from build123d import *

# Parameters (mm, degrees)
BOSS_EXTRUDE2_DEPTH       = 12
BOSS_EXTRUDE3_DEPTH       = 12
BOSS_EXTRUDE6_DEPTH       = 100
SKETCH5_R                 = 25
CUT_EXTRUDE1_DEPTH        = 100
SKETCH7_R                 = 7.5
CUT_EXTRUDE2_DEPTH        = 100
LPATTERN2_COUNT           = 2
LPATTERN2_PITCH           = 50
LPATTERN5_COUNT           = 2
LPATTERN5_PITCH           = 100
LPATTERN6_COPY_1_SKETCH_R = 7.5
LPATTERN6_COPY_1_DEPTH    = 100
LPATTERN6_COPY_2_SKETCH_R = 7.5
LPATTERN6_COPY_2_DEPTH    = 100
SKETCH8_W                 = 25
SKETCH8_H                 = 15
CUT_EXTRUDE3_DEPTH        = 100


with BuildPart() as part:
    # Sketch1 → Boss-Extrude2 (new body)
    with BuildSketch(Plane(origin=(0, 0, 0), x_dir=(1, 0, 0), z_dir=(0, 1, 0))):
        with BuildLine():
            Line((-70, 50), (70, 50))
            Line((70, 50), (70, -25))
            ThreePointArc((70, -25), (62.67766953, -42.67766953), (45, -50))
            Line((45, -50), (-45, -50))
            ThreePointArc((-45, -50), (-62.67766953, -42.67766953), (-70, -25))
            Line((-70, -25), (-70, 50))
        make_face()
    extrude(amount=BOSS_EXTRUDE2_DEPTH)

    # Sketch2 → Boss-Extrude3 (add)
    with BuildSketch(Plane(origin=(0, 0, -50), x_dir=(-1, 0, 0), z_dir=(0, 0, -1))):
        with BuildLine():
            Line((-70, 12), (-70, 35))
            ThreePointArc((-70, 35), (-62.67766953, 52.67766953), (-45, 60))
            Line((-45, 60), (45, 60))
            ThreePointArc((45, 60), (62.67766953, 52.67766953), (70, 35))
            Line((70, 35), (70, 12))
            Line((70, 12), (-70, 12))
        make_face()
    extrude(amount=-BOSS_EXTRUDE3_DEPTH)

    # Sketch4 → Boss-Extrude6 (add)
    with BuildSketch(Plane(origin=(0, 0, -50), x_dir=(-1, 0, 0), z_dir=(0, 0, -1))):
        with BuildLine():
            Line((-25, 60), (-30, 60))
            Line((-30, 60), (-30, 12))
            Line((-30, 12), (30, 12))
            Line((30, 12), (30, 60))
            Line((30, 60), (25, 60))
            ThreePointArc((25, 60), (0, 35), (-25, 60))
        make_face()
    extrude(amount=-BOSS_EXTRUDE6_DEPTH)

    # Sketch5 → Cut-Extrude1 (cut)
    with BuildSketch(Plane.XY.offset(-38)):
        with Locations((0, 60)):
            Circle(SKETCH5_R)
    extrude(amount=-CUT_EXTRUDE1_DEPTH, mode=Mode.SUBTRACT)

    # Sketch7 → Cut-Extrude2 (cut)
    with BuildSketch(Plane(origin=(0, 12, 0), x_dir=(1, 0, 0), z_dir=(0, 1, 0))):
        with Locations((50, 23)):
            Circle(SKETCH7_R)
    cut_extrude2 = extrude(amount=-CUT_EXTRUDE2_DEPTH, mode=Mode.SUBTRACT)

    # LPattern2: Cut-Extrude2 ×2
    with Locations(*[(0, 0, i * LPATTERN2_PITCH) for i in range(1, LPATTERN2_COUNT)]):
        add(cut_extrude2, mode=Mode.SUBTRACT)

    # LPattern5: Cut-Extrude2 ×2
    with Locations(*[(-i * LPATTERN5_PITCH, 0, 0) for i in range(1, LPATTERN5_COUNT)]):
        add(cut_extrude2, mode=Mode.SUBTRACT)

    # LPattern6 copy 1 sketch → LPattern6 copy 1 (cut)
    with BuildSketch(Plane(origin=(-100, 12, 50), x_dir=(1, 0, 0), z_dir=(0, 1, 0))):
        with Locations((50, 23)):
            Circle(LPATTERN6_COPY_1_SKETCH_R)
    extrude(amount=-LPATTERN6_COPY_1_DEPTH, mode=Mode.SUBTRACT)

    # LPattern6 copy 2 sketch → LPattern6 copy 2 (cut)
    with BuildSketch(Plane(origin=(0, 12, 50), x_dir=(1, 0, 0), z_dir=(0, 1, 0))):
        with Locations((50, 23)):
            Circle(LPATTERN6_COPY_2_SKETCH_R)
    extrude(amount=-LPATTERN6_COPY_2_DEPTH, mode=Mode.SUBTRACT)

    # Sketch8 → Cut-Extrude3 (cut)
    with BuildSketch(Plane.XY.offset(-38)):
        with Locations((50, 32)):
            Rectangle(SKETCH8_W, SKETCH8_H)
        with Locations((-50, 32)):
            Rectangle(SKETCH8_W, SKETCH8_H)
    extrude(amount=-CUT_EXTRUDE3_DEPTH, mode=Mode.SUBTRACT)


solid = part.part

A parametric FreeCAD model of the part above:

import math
import FreeCAD as App
import Part
import Sketcher
from FreeCAD import Vector
Q = App.Units.Quantity

doc = App.newDocument("Part")
params = doc.addObject("Spreadsheet::Sheet", "Params")
for row, (alias, value) in enumerate([
    ("sketch1_radius", "25 mm"),
    ("sketch1_width", "140 mm"),
    ("sketch1_height", "75 mm"),
    ("pad1_length", "12 mm"),
    ("sketch2_radius", "25 mm"),
    ("sketch2_width", "140 mm"),
    ("sketch2_height", "23 mm"),
    ("pad2_length", "12 mm"),
    ("sketch3_radius", "25 mm"),
    ("sketch3_width", "5 mm"),
    ("sketch3_height", "48 mm"),
    ("pad3_length", "100 mm"),
    ("sketch4_diameter", "50 mm"),
    ("pocket1_length", "100 mm"),
    ("sketch5_diameter", "15 mm"),
    ("pocket2_length", "100 mm"),
    ("linearpattern_pitch", "50 mm"),
    ("linearpattern2_pitch", "100 mm"),
    ("sketch6_diameter", "15 mm"),
    ("pocket3_length", "100 mm"),
    ("sketch7_diameter", "15 mm"),
    ("pocket4_length", "100 mm"),
    ("sketch8_width", "25 mm"),
    ("sketch8_height", "15 mm"),
    ("pocket5_length", "100 mm"),
], start=1):
    params.set(f"A{row}", alias)
    params.set(f"B{row}", "=" + value)
    params.setAlias(f"B{row}", alias)

body = doc.addObject("PartDesign::Body", "Body")

# Sketch on XZ plane
sketch1 = body.newObject("Sketcher::SketchObject", "Sketch")
sketch1.AttachmentSupport = (doc.getObject("XZ_Plane"), [""])
sketch1.MapMode = "FlatFace"
sketch1.addGeometry([
    Part.LineSegment(Vector(70, -50, 0), Vector(-70, -50, 0)),  # 0
    Part.LineSegment(Vector(-70, -50, 0), Vector(-70, 25, 0)),  # 1
    Part.ArcOfCircle(Part.Circle(Vector(-45, 25, 0), Vector(0, 0, 1), 25), math.radians(90), math.radians(180)),  # 2
    Part.LineSegment(Vector(-45, 50, 0), Vector(45, 50, 0)),  # 3
    Part.ArcOfCircle(Part.Circle(Vector(45, 25, 0), Vector(0, 0, 1), 25), math.radians(0), math.radians(90)),  # 4
    Part.LineSegment(Vector(70, 25, 0), Vector(70, -50, 0)),  # 5
], False)
sketch1.addConstraint([
    Sketcher.Constraint("Coincident", 0, 2, 1, 1),
    Sketcher.Constraint("Tangent", 1, 2, 2, 2),
    Sketcher.Constraint("Tangent", 2, 1, 3, 1),
    Sketcher.Constraint("Tangent", 3, 2, 4, 2),
    Sketcher.Constraint("Tangent", 4, 1, 5, 1),
    Sketcher.Constraint("Coincident", 5, 2, 0, 1),
    Sketcher.Constraint("Horizontal", 0),
    Sketcher.Constraint("Vertical", 1),
    Sketcher.Constraint("Horizontal", 3),
    Sketcher.Constraint("Vertical", 5),
    Sketcher.Constraint("Equal", 2, 4),
    Sketcher.Constraint("Radius", 2, Q("25 mm")),
    Sketcher.Constraint("DistanceX", 0, 2, 0, 1, Q("140 mm")),
    Sketcher.Constraint("DistanceY", 1, 1, 1, 2, Q("75 mm")),
    Sketcher.Constraint("DistanceX", 2, 3, -1, 1, Q("45 mm")),
    Sketcher.Constraint("DistanceY", -1, 1, 2, 3, Q("25 mm")),
])
sketch1.setExpression("Constraints[11]", "Params.sketch1_radius")
sketch1.setExpression("Constraints[12]", "Params.sketch1_width")
sketch1.setExpression("Constraints[13]", "Params.sketch1_height")
pad1 = body.newObject("PartDesign::Pad", "Pad")
pad1.Profile = sketch1
pad1.setExpression("Length", "Params.pad1_length")
pad1.Reversed = True

# Sketch on XY plane
sketch2 = body.newObject("Sketcher::SketchObject", "Sketch001")
sketch2.AttachmentSupport = (doc.getObject("XY_Plane"), [""])
sketch2.MapMode = "FlatFace"
sketch2.AttachmentOffset = App.Placement(Vector(0, 0, -50), App.Rotation())
sketch2.addGeometry([
    Part.LineSegment(Vector(70, 35, 0), Vector(70, 12, 0)),  # 0
    Part.LineSegment(Vector(70, 12, 0), Vector(-70, 12, 0)),  # 1
    Part.LineSegment(Vector(-70, 12, 0), Vector(-70, 35, 0)),  # 2
    Part.ArcOfCircle(Part.Circle(Vector(-45, 35, 0), Vector(0, 0, 1), 25), math.radians(90), math.radians(180)),  # 3
    Part.LineSegment(Vector(-45, 60, 0), Vector(45, 60, 0)),  # 4
    Part.ArcOfCircle(Part.Circle(Vector(45, 35, 0), Vector(0, 0, 1), 25), math.radians(0), math.radians(90)),  # 5
], False)
sketch2.addConstraint([
    Sketcher.Constraint("Coincident", 0, 2, 1, 1),
    Sketcher.Constraint("Coincident", 1, 2, 2, 1),
    Sketcher.Constraint("Tangent", 2, 2, 3, 2),
    Sketcher.Constraint("Tangent", 3, 1, 4, 1),
    Sketcher.Constraint("Tangent", 4, 2, 5, 2),
    Sketcher.Constraint("Tangent", 5, 1, 0, 1),
    Sketcher.Constraint("Vertical", 0),
    Sketcher.Constraint("Horizontal", 1),
    Sketcher.Constraint("Vertical", 2),
    Sketcher.Constraint("Horizontal", 4),
    Sketcher.Constraint("Equal", 3, 5),
    Sketcher.Constraint("Radius", 3, Q("25 mm")),
    Sketcher.Constraint("DistanceX", 1, 2, 1, 1, Q("140 mm")),
    Sketcher.Constraint("DistanceY", 0, 2, 0, 1, Q("23 mm")),
    Sketcher.Constraint("DistanceX", 3, 3, -1, 1, Q("45 mm")),
    Sketcher.Constraint("DistanceY", -1, 1, 3, 3, Q("35 mm")),
])
sketch2.setExpression("Constraints[11]", "Params.sketch2_radius")
sketch2.setExpression("Constraints[12]", "Params.sketch2_width")
sketch2.setExpression("Constraints[13]", "Params.sketch2_height")
pad2 = body.newObject("PartDesign::Pad", "Pad001")
pad2.Profile = sketch2
pad2.setExpression("Length", "Params.pad2_length")

# Sketch on XY plane
sketch3 = body.newObject("Sketcher::SketchObject", "Sketch002")
sketch3.AttachmentSupport = (doc.getObject("XY_Plane"), [""])
sketch3.MapMode = "FlatFace"
sketch3.AttachmentOffset = App.Placement(Vector(0, 0, -50), App.Rotation())
sketch3.addGeometry([
    Part.LineSegment(Vector(25, 60, 0), Vector(30, 60, 0)),  # 0
    Part.LineSegment(Vector(30, 60, 0), Vector(30, 12, 0)),  # 1
    Part.LineSegment(Vector(30, 12, 0), Vector(-30, 12, 0)),  # 2
    Part.LineSegment(Vector(-30, 12, 0), Vector(-30, 60, 0)),  # 3
    Part.LineSegment(Vector(-30, 60, 0), Vector(-25, 60, 0)),  # 4
    Part.ArcOfCircle(Part.Circle(Vector(0, 60, 0), Vector(0, 0, 1), 25), math.radians(180), math.radians(360)),  # 5
], False)
sketch3.addConstraint([
    Sketcher.Constraint("Coincident", 0, 2, 1, 1),
    Sketcher.Constraint("Coincident", 1, 2, 2, 1),
    Sketcher.Constraint("Coincident", 2, 2, 3, 1),
    Sketcher.Constraint("Coincident", 3, 2, 4, 1),
    Sketcher.Constraint("Coincident", 4, 2, 5, 1),
    Sketcher.Constraint("Coincident", 5, 2, 0, 1),
    Sketcher.Constraint("Horizontal", 0),
    Sketcher.Constraint("Vertical", 1),
    Sketcher.Constraint("Horizontal", 2),
    Sketcher.Constraint("Vertical", 3),
    Sketcher.Constraint("Horizontal", 4),
    Sketcher.Constraint("Symmetric", 0, 2, 3, 2, -2),
    Sketcher.Constraint("PointOnObject", 5, 3, -2),
    Sketcher.Constraint("Horizontal", 5, 3, 0, 2),
    Sketcher.Constraint("Radius", 5, Q("25 mm")),
    Sketcher.Constraint("DistanceX", 0, 1, 0, 2, Q("5 mm")),
    Sketcher.Constraint("DistanceY", 1, 2, 1, 1, Q("48 mm")),
    Sketcher.Constraint("DistanceY", -1, 1, 5, 3, Q("60 mm")),
])
sketch3.setExpression("Constraints[14]", "Params.sketch3_radius")
sketch3.setExpression("Constraints[15]", "Params.sketch3_width")
sketch3.setExpression("Constraints[16]", "Params.sketch3_height")
pad3 = body.newObject("PartDesign::Pad", "Pad002")
pad3.Profile = sketch3
pad3.setExpression("Length", "Params.pad3_length")

# Sketch on XY plane
sketch4 = body.newObject("Sketcher::SketchObject", "Sketch003")
sketch4.AttachmentSupport = (doc.getObject("XY_Plane"), [""])
sketch4.MapMode = "FlatFace"
sketch4.AttachmentOffset = App.Placement(Vector(0, 0, -38), App.Rotation())
sketch4.addGeometry(Part.Circle(Vector(0, 60, 0), Vector(0, 0, 1), 25), False)
sketch4.addConstraint([
    Sketcher.Constraint("PointOnObject", 0, 3, -2),
    Sketcher.Constraint("Diameter", 0, Q("50 mm")),
    Sketcher.Constraint("DistanceY", -1, 1, 0, 3, Q("60 mm")),
])
sketch4.setExpression("Constraints[1]", "Params.sketch4_diameter")
pocket1 = body.newObject("PartDesign::Pocket", "Pocket")
pocket1.Profile = sketch4
pocket1.setExpression("Length", "Params.pocket1_length")

# Sketch on XZ plane
sketch5 = body.newObject("Sketcher::SketchObject", "Sketch004")
sketch5.AttachmentSupport = (doc.getObject("XZ_Plane"), [""])
sketch5.MapMode = "FlatFace"
sketch5.AttachmentOffset = App.Placement(Vector(0, 0, -12), App.Rotation())
sketch5.addGeometry(Part.Circle(Vector(50, -23, 0), Vector(0, 0, 1), 7.5), False)
sketch5.addConstraint([
    Sketcher.Constraint("Diameter", 0, Q("15 mm")),
    Sketcher.Constraint("DistanceX", -1, 1, 0, 3, Q("50 mm")),
    Sketcher.Constraint("DistanceY", 0, 3, -1, 1, Q("23 mm")),
])
sketch5.setExpression("Constraints[0]", "Params.sketch5_diameter")
pocket2 = body.newObject("PartDesign::Pocket", "Pocket001")
pocket2.Profile = sketch5
pocket2.setExpression("Length", "Params.pocket2_length")
pocket2.Reversed = True
doc.recompute()

linearpattern = body.newObject("PartDesign::LinearPattern", "LinearPattern")
linearpattern.Originals = [pocket2]
linearpattern.Direction = (doc.getObject("Z_Axis"), [""])
linearpattern.Mode = "offset"
linearpattern.setExpression("Offset", "Params.linearpattern_pitch")
linearpattern.Occurrences = 2
body.Tip = linearpattern
doc.recompute()

linearpattern2 = body.newObject("PartDesign::LinearPattern", "LinearPattern001")
linearpattern2.Originals = [pocket2]
linearpattern2.Direction = (doc.getObject("X_Axis"), [""])
linearpattern2.Mode = "offset"
linearpattern2.setExpression("Offset", "Params.linearpattern2_pitch")
linearpattern2.Occurrences = 2
linearpattern2.Reversed = True
body.Tip = linearpattern2

# Sketch on XZ plane
sketch6 = body.newObject("Sketcher::SketchObject", "Sketch005")
sketch6.AttachmentSupport = (doc.getObject("XZ_Plane"), [""])
sketch6.MapMode = "FlatFace"
sketch6.AttachmentOffset = App.Placement(Vector(0, 0, -12), App.Rotation())
sketch6.addGeometry(Part.Circle(Vector(-50, 27, 0), Vector(0, 0, 1), 7.5), False)
sketch6.addConstraint([
    Sketcher.Constraint("Diameter", 0, Q("15 mm")),
    Sketcher.Constraint("DistanceX", 0, 3, -1, 1, Q("50 mm")),
    Sketcher.Constraint("DistanceY", -1, 1, 0, 3, Q("27 mm")),
])
sketch6.setExpression("Constraints[0]", "Params.sketch6_diameter")
pocket3 = body.newObject("PartDesign::Pocket", "Pocket002")
pocket3.Profile = sketch6
pocket3.setExpression("Length", "Params.pocket3_length")
pocket3.Reversed = True

# Sketch on XZ plane
sketch7 = body.newObject("Sketcher::SketchObject", "Sketch006")
sketch7.AttachmentSupport = (doc.getObject("XZ_Plane"), [""])
sketch7.MapMode = "FlatFace"
sketch7.AttachmentOffset = App.Placement(Vector(0, 0, -12), App.Rotation())
sketch7.addGeometry(Part.Circle(Vector(50, 27, 0), Vector(0, 0, 1), 7.5), False)
sketch7.addConstraint([
    Sketcher.Constraint("Diameter", 0, Q("15 mm")),
    Sketcher.Constraint("DistanceX", -1, 1, 0, 3, Q("50 mm")),
    Sketcher.Constraint("DistanceY", -1, 1, 0, 3, Q("27 mm")),
])
sketch7.setExpression("Constraints[0]", "Params.sketch7_diameter")
pocket4 = body.newObject("PartDesign::Pocket", "Pocket003")
pocket4.Profile = sketch7
pocket4.setExpression("Length", "Params.pocket4_length")
pocket4.Reversed = True

# Sketch on XY plane
sketch8 = body.newObject("Sketcher::SketchObject", "Sketch007")
sketch8.AttachmentSupport = (doc.getObject("XY_Plane"), [""])
sketch8.MapMode = "FlatFace"
sketch8.AttachmentOffset = App.Placement(Vector(0, 0, -38), App.Rotation())
sketch8.addGeometry([
    Part.LineSegment(Vector(37.5, 39.5, 0), Vector(37.5, 24.5, 0)),  # 0
    Part.LineSegment(Vector(37.5, 24.5, 0), Vector(62.5, 24.5, 0)),  # 1
    Part.LineSegment(Vector(62.5, 24.5, 0), Vector(62.5, 39.5, 0)),  # 2
    Part.LineSegment(Vector(62.5, 39.5, 0), Vector(37.5, 39.5, 0)),  # 3
    Part.LineSegment(Vector(-62.5, 39.5, 0), Vector(-62.5, 24.5, 0)),  # 4
    Part.LineSegment(Vector(-62.5, 24.5, 0), Vector(-37.5, 24.5, 0)),  # 5
    Part.LineSegment(Vector(-37.5, 24.5, 0), Vector(-37.5, 39.5, 0)),  # 6
    Part.LineSegment(Vector(-37.5, 39.5, 0), Vector(-62.5, 39.5, 0)),  # 7
], False)
sketch8.addConstraint([
    Sketcher.Constraint("Coincident", 0, 2, 1, 1),
    Sketcher.Constraint("Coincident", 1, 2, 2, 1),
    Sketcher.Constraint("Coincident", 2, 2, 3, 1),
    Sketcher.Constraint("Coincident", 3, 2, 0, 1),
    Sketcher.Constraint("Coincident", 4, 2, 5, 1),
    Sketcher.Constraint("Coincident", 5, 2, 6, 1),
    Sketcher.Constraint("Coincident", 6, 2, 7, 1),
    Sketcher.Constraint("Coincident", 7, 2, 4, 1),
    Sketcher.Constraint("Vertical", 0),
    Sketcher.Constraint("Horizontal", 1),
    Sketcher.Constraint("Vertical", 2),
    Sketcher.Constraint("Horizontal", 3),
    Sketcher.Constraint("Vertical", 4),
    Sketcher.Constraint("Horizontal", 5),
    Sketcher.Constraint("Vertical", 6),
    Sketcher.Constraint("Horizontal", 7),
    Sketcher.Constraint("Symmetric", 1, 2, 4, 2, -2),
    Sketcher.Constraint("Symmetric", 3, 2, 6, 2, -2),
    Sketcher.Constraint("DistanceX", 1, 1, 1, 2, Q("25 mm")),
    Sketcher.Constraint("DistanceY", 0, 2, 0, 1, Q("15 mm")),
    Sketcher.Constraint("DistanceX", 4, 2, 0, 2, Q("100 mm")),
    Sketcher.Constraint("DistanceY", -1, 1, 0, 2, Q("24.5 mm")),
])
sketch8.setExpression("Constraints[18]", "Params.sketch8_width")
sketch8.setExpression("Constraints[19]", "Params.sketch8_height")
pocket5 = body.newObject("PartDesign::Pocket", "Pocket004")
pocket5.Profile = sketch8
pocket5.setExpression("Length", "Params.pocket5_length")

doc.recompute()
